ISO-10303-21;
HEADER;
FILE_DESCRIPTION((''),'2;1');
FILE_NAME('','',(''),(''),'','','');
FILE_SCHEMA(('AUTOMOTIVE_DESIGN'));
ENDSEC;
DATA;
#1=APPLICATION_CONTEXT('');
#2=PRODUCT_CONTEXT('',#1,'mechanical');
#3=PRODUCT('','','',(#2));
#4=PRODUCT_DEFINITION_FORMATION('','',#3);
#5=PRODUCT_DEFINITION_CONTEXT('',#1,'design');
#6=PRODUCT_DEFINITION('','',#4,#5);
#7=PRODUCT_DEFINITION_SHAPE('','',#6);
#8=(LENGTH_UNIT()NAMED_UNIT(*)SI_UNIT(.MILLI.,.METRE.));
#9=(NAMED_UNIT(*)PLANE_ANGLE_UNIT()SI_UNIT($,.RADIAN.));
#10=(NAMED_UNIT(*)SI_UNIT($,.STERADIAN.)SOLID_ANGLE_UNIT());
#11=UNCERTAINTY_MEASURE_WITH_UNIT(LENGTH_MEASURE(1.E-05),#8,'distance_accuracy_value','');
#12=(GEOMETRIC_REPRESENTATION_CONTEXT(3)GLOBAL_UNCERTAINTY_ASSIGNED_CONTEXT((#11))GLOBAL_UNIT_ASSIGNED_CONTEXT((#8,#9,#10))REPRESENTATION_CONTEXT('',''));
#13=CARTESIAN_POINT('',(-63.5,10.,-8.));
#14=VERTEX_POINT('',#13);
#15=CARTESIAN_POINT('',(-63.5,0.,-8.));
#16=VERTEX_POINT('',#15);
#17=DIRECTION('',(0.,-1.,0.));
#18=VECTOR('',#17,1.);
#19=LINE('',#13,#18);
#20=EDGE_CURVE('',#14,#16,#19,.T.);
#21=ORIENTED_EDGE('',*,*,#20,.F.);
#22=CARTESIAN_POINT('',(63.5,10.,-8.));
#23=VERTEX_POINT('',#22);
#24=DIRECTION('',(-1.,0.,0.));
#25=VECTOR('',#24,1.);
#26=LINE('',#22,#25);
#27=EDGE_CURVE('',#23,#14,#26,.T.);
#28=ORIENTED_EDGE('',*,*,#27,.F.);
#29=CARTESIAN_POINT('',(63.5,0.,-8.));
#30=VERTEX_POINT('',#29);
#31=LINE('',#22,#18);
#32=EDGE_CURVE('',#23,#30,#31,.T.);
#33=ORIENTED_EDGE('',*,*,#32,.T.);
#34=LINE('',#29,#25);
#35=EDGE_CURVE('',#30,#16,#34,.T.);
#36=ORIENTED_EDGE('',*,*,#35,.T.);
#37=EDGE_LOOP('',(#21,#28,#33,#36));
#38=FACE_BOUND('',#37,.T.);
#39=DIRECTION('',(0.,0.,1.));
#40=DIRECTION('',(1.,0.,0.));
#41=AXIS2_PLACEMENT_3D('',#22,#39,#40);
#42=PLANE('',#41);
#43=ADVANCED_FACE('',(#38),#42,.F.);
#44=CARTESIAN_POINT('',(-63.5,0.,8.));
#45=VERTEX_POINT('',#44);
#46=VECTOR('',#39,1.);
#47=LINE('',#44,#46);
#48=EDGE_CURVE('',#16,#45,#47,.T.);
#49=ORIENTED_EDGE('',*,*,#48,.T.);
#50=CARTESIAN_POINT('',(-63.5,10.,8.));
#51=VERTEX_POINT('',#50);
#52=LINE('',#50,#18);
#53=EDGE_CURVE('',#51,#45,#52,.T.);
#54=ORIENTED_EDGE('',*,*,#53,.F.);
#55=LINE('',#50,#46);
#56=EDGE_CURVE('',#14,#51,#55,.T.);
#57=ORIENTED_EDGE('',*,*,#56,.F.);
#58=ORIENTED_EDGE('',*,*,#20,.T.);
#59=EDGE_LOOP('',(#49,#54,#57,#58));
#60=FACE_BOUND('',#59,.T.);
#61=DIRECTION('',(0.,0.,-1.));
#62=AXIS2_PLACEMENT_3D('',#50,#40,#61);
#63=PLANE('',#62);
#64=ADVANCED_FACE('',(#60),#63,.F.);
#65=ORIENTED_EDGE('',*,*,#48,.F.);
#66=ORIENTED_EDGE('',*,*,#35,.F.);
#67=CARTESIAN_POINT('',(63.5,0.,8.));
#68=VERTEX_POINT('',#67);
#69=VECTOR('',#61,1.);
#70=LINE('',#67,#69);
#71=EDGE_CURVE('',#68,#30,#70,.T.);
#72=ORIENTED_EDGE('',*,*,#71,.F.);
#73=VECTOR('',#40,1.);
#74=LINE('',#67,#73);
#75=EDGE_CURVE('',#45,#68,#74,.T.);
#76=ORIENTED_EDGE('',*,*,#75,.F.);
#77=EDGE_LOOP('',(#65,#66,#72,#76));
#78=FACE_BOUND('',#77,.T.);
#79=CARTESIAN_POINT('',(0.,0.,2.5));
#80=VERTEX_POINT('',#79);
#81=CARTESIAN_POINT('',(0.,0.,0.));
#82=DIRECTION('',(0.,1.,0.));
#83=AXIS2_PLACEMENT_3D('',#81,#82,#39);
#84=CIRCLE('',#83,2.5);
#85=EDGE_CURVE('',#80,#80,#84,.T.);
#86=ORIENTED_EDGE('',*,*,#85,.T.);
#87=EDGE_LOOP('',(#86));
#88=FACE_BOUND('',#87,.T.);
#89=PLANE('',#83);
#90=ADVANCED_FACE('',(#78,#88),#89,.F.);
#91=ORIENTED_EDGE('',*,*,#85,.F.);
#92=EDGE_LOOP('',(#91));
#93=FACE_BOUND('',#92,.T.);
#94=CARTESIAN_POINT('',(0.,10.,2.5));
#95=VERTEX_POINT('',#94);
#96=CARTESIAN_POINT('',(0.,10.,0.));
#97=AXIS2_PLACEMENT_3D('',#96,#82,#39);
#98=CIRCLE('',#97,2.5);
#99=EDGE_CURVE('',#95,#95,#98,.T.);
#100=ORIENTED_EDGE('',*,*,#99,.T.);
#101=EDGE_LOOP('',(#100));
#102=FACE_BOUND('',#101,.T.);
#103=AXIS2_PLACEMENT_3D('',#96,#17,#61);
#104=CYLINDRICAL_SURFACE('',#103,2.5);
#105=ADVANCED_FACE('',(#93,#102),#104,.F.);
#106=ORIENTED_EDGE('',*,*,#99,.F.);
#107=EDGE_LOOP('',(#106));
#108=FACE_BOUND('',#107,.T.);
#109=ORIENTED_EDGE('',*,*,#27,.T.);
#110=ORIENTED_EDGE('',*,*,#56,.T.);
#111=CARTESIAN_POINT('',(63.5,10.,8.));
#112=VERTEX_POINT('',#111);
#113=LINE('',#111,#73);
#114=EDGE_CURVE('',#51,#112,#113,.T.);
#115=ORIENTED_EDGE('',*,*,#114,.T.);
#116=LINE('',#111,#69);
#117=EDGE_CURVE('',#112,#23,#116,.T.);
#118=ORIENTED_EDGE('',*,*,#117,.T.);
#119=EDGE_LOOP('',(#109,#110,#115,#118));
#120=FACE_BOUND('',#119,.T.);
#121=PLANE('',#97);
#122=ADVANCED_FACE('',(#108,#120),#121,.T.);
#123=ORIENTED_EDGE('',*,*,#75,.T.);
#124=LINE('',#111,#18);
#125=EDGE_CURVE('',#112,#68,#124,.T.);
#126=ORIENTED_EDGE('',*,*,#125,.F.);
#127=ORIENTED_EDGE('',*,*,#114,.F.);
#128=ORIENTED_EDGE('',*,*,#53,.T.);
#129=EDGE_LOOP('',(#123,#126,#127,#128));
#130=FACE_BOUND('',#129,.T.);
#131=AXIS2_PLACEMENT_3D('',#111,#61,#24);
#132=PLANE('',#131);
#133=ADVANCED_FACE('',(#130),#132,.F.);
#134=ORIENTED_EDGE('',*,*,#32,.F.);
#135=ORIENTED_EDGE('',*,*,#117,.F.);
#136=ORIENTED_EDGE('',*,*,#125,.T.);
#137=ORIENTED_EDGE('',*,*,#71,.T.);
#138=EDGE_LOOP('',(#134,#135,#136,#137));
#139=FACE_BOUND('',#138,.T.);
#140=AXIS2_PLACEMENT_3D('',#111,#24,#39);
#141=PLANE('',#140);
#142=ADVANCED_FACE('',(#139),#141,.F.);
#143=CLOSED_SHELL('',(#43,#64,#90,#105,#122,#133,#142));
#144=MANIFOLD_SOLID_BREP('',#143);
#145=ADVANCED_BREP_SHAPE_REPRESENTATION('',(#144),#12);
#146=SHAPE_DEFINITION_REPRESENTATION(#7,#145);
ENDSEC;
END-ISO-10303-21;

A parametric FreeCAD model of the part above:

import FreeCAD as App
import Part
import Sketcher
Q = App.Units.Quantity

doc = App.newDocument("Part")
body = doc.addObject("PartDesign::Body", "Body")

# Sketch on XZ plane
sketch1 = body.newObject("Sketcher::SketchObject", "Sketch")
sketch1.AttachmentSupport = (doc.getObject("XZ_Plane"), [""])
sketch1.MapMode = "FlatFace"
sketch1.addGeometry([
    Part.LineSegment(App.Vector(-63.5, -8, 0), App.Vector(-63.5, 8, 0)),  # 0
    Part.LineSegment(App.Vector(-63.5, 8, 0), App.Vector(63.5, 8, 0)),  # 1
    Part.LineSegment(App.Vector(63.5, 8, 0), App.Vector(63.5, -8, 0)),  # 2
    Part.LineSegment(App.Vector(63.5, -8, 0), App.Vector(-63.5, -8, 0)),  # 3
    Part.Circle(App.Vector(0, 0, 0), App.Vector(0, 0, 1), 2.5),  # 4
], False)
sketch1.addConstraint([
    Sketcher.Constraint("Coincident", 0, 2, 1, 1),
    Sketcher.Constraint("Coincident", 1, 2, 2, 1),
    Sketcher.Constraint("Coincident", 2, 2, 3, 1),
    Sketcher.Constraint("Coincident", 3, 2, 0, 1),
    Sketcher.Constraint("Vertical", 0),
    Sketcher.Constraint("Horizontal", 1),
    Sketcher.Constraint("Vertical", 2),
    Sketcher.Constraint("Horizontal", 3),
    Sketcher.Constraint("Coincident", 4, 3, -1, 1),
    Sketcher.Constraint("Symmetric", 0, 2, 2, 2, -1, 1),
    Sketcher.Constraint("Diameter", 4, Q("5 mm")),
    Sketcher.Constraint("DistanceX", 1, 1, 1, 2, Q("127 mm")),
    Sketcher.Constraint("DistanceY", 0, 1, 0, 2, Q("16 mm")),
])
pad1 = body.newObject("PartDesign::Pad", "Pad")
pad1.Profile = sketch1
pad1.Length = 10
pad1.Reversed = True

doc.recompute()
